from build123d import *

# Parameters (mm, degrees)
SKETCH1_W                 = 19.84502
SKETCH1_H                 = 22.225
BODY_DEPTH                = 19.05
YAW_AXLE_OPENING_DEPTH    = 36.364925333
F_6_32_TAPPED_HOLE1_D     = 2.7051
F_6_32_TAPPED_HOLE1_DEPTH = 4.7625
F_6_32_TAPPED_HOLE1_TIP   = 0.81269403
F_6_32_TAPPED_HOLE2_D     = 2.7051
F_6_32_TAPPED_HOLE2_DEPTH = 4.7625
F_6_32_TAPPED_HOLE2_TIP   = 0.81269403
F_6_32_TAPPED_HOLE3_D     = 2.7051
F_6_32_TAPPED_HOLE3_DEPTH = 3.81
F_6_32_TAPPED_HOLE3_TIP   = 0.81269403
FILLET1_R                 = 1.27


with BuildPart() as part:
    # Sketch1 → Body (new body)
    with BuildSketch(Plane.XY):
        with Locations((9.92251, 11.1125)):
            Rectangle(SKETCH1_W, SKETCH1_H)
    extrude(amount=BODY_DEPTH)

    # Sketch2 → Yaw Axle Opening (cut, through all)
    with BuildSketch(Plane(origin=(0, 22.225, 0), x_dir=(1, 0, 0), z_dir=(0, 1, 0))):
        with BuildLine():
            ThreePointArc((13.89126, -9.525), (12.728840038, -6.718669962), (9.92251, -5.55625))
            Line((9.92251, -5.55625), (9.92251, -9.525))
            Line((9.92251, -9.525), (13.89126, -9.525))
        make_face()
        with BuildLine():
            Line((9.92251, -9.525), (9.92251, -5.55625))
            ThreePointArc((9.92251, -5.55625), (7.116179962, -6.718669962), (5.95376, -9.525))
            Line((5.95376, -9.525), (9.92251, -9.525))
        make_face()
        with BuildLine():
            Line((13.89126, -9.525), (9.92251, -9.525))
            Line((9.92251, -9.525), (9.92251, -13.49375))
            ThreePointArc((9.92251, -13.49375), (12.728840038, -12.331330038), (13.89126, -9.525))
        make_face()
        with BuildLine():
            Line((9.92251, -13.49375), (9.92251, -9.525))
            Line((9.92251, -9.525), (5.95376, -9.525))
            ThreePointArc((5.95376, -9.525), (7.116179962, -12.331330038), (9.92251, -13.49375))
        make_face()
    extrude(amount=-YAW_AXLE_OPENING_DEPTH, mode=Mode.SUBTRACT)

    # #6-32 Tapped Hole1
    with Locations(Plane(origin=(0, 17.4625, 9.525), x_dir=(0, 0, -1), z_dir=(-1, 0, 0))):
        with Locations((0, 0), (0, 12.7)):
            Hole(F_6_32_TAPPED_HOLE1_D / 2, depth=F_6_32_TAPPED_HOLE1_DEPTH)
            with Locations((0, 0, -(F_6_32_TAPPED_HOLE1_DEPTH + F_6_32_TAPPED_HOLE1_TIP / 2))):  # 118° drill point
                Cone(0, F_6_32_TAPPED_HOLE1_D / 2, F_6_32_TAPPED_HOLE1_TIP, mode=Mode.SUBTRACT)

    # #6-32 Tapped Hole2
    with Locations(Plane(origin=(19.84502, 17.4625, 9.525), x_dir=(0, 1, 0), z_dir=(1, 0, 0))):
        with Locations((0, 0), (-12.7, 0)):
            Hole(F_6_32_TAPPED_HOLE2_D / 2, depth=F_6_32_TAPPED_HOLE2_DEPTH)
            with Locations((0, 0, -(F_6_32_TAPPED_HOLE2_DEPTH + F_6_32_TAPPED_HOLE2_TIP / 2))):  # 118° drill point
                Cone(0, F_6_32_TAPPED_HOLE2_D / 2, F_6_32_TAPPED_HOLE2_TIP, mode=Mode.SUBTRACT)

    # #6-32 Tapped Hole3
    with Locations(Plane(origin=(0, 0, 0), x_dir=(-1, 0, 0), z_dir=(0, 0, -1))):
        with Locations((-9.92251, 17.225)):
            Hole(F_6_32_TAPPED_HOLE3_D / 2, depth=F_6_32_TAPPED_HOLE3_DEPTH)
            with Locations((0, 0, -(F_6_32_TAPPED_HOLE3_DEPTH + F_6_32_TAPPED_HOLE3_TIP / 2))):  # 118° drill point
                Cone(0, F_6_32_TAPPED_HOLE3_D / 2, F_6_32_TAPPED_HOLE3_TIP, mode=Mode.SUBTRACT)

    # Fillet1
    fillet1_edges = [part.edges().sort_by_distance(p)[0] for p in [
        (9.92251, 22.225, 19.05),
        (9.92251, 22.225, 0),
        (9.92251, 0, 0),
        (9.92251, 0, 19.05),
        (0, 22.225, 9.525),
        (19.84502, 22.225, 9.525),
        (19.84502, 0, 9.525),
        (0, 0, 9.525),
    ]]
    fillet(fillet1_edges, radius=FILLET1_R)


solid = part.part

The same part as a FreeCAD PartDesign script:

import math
import FreeCAD as App
import Part
import Sketcher
Q = App.Units.Quantity


def edges_at(feature, points):
    """Names of the edges that pass closest to the given points."""
    edges = feature.Shape.Edges
    near = lambda p: min(range(len(edges)), key=lambda i: edges[i].distToShape(Part.Vertex(*p))[0])
    return sorted({f"Edge{near(p) + 1}" for p in points})


def add_polygon(sketch, points):
    """Adds a closed chain of lines whose ends are joined by coincident constraints."""
    first, n = sketch.GeometryCount, len(points)
    for a, b in zip(points, points[1:] + points[:1]):
        sketch.addGeometry(Part.LineSegment(App.Vector(*a, 0), App.Vector(*b, 0)), False)
    for i in range(n):
        sketch.addConstraint(Sketcher.Constraint("Coincident", first + i, 2, first + (i + 1) % n, 1))

doc = App.newDocument("Part")
body = doc.addObject("PartDesign::Body", "Body")

# Sketch on XY plane
sketch1 = body.newObject("Sketcher::SketchObject", "Sketch")
sketch1.AttachmentSupport = (doc.getObject("XY_Plane"), [""])
sketch1.MapMode = "FlatFace"
add_polygon(sketch1, [(0, 22), (0, 0), (20, 0), (20, 22)])  # lines 0-3
sketch1.addConstraint([
    Sketcher.Constraint("Vertical", 0),
    Sketcher.Constraint("Horizontal", 1),
    Sketcher.Constraint("Vertical", 2),
    Sketcher.Constraint("Horizontal", 3),
    Sketcher.Constraint("Coincident", 0, 2, -1, 1),
    Sketcher.Constraint("DistanceY", 0, 2, 0, 1, Q("0.875 in")),
    Sketcher.Constraint("DistanceX", 1, 1, 1, 2, Q("0.7813 in")),
])
pad1 = body.newObject("PartDesign::Pad", "Pad")
pad1.Profile = sketch1
pad1.Length = Q("0.75 in")

# Sketch on XZ plane
sketch2 = body.newObject("Sketcher::SketchObject", "Sketch001")
sketch2.AttachmentSupport = (doc.getObject("XZ_Plane"), [""])
sketch2.MapMode = "FlatFace"
sketch2.AttachmentOffset = App.Placement(App.Vector(0, 0, -0.875 * 25.4), App.Rotation())
sketch2.addGeometry([
    Part.ArcOfCircle(Part.Circle(App.Vector(9.9, 9.5, 0), App.Vector(0, 0, 1), 4), math.radians(180), math.radians(270)),
    Part.ArcOfCircle(Part.Circle(App.Vector(9.9, 9.5, 0), App.Vector(0, 0, 1), 4), math.radians(90), math.radians(180)),
    Part.ArcOfCircle(Part.Circle(App.Vector(9.9, 9.5, 0), App.Vector(0, 0, 1), 4), math.radians(0), math.radians(90)),
    Part.ArcOfCircle(Part.Circle(App.Vector(9.9, 9.5, 0), App.Vector(0, 0, 1), 4), math.radians(-90), math.radians(0)),
], False)
sketch2.addConstraint([
    Sketcher.Constraint("Tangent", 0, 1, 1, 2),
    Sketcher.Constraint("Tangent", 1, 1, 2, 2),
    Sketcher.Constraint("Tangent", 2, 1, 3, 2),
    Sketcher.Constraint("Tangent", 3, 1, 0, 2),
    Sketcher.Constraint("Equal", 0, 1),
    Sketcher.Constraint("Horizontal", 3, 3, 0, 1),
    Sketcher.Constraint("Horizontal", 0, 1, 2, 1),
    Sketcher.Constraint("Vertical", 3, 3, 1, 1),
    Sketcher.Constraint("Vertical", 1, 1, 3, 1),
    Sketcher.Constraint("Radius", 0, Q("0.15625 in")),
    Sketcher.Constraint("DistanceY", -1, 1, 0, 3, Q("0.375 in")),
    Sketcher.Constraint("DistanceX", -1, 1, 0, 1, Q("0.2344 in")),
])
pocket1 = body.newObject("PartDesign::Pocket", "Pocket")
pocket1.Profile = sketch2
pocket1.Type = "ThroughAll"
pocket1.Reversed = True

# Sketch on YZ plane
sketch3 = body.newObject("Sketcher::SketchObject", "Sketch002")
sketch3.AttachmentSupport = (doc.getObject("YZ_Plane"), [""])
sketch3.MapMode = "FlatFace"
sketch3.addGeometry([
    Part.Circle(App.Vector(17.5, 9.5, 0), App.Vector(0, 0, 1), 1.4),
    Part.Circle(App.Vector(4.8, 9.5, 0), App.Vector(0, 0, 1), 1.4),
], False)
sketch3.addConstraint([
    Sketcher.Constraint("Equal", 0, 1),
    Sketcher.Constraint("Horizontal", 0, 3, 1, 3),
    Sketcher.Constraint("Diameter", 0, Q("0.1065 in")),
    Sketcher.Constraint("DistanceX", 1, 3, 0, 3, Q("0.5 in")),
    Sketcher.Constraint("DistanceX", -1, 1, 0, 3, Q("0.6875 in")),
    Sketcher.Constraint("DistanceY", -1, 1, 0, 3, Q("0.375 in")),
])
doc.recompute()
hole = body.newObject("PartDesign::Hole", "Hole")
hole.Profile = sketch3
hole.ThreadType = "None"
hole.Diameter = Q("0.1065 in")
hole.DepthType = "Dimension"
hole.Depth = Q("0.1875 in")
hole.DrillPoint = "Angled"
hole.DrillPointAngle = 118
hole.Reversed = True

# Sketch on YZ plane
sketch4 = body.newObject("Sketcher::SketchObject", "Sketch003")
sketch4.AttachmentSupport = (doc.getObject("YZ_Plane"), [""])
sketch4.MapMode = "FlatFace"
sketch4.AttachmentOffset = App.Placement(App.Vector(0, 0, 0.7813 * 25.4), App.Rotation())
sketch4.addGeometry([
    Part.Circle(App.Vector(17.5, 9.5, 0), App.Vector(0, 0, 1), 1.4),
    Part.Circle(App.Vector(4.8, 9.5, 0), App.Vector(0, 0, 1), 1.4),
], False)
sketch4.addConstraint([
    Sketcher.Constraint("Equal", 0, 1),
    Sketcher.Constraint("Horizontal", 0, 3, 1, 3),
    Sketcher.Constraint("Diameter", 0, Q("0.1065 in")),
    Sketcher.Constraint("DistanceX", 1, 3, 0, 3, Q("0.5 in")),
    Sketcher.Constraint("DistanceX", -1, 1, 0, 3, Q("0.6875 in")),
    Sketcher.Constraint("DistanceY", -1, 1, 0, 3, Q("0.375 in")),
])
doc.recompute()
hole2 = body.newObject("PartDesign::Hole", "Hole001")
hole2.Profile = sketch4
hole2.ThreadType = "None"
hole2.Diameter = Q("0.1065 in")
hole2.DepthType = "Dimension"
hole2.Depth = Q("0.1875 in")
hole2.DrillPoint = "Angled"
hole2.DrillPointAngle = 118

# Sketch on XY plane
sketch5 = body.newObject("Sketcher::SketchObject", "Sketch004")
sketch5.AttachmentSupport = (doc.getObject("XY_Plane"), [""])
sketch5.MapMode = "FlatFace"
sketch5.addGeometry(Part.Circle(App.Vector(9.9, 17.2, 0), App.Vector(0, 0, 1), 1.4), False)
sketch5.addConstraint([
    Sketcher.Constraint("Diameter", 0, Q("0.1065 in")),
    Sketcher.Constraint("DistanceY", -1, 1, 0, 3, Q("17.225 mm")),
    Sketcher.Constraint("DistanceX", -1, 1, 0, 3, Q("9.92251 mm")),
])
doc.recompute()
hole3 = body.newObject("PartDesign::Hole", "Hole002")
hole3.Profile = sketch5
hole3.ThreadType = "None"
hole3.Diameter = Q("0.1065 in")
hole3.DepthType = "Dimension"
hole3.Depth = Q("0.15 in")
hole3.DrillPoint = "Angled"
hole3.DrillPointAngle = 118
hole3.Reversed = True
doc.recompute()

fillet = body.newObject("PartDesign::Fillet", "Fillet")
fillet.Base = (hole3, edges_at(hole3, [
    (9.923, 22.225, 19.05),
    (9.923, 22.225, 0),
    (9.923, 0, 0),
    (9.923, 0, 19.05),
    (0, 22.225, 9.525),
    (19.845, 22.225, 9.525),
    (19.845, 0, 9.525),
    (0, 0, 9.525),
]))
fillet.Radius = Q("0.05 in")

doc.recompute()
